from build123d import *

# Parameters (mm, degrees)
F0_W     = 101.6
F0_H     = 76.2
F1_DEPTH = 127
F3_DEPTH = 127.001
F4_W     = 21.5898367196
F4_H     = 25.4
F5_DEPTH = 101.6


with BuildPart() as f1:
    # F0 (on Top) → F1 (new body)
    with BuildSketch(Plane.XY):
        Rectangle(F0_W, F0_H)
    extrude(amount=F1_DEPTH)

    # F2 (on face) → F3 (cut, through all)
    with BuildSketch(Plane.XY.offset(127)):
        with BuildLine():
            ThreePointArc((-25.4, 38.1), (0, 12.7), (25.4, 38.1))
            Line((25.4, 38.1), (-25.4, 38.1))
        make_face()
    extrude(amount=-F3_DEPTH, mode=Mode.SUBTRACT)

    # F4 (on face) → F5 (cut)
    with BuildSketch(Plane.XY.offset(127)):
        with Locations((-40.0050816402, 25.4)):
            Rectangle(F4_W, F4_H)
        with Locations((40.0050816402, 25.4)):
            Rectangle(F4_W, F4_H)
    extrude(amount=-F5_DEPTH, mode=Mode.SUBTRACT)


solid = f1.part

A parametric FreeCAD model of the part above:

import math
import FreeCAD as App
import Part
import Sketcher
Q = App.Units.Quantity

doc = App.newDocument("Part")
body = doc.addObject("PartDesign::Body", "Body")

# Sketch on XY plane
sketch1 = body.newObject("Sketcher::SketchObject", "Sketch")
sketch1.AttachmentSupport = (doc.getObject("XY_Plane"), [""])
sketch1.MapMode = "FlatFace"
sketch1.addGeometry([
    Part.LineSegment(App.Vector(-50.8, 38.1, 0), App.Vector(-50.8, -38.1, 0)),
    Part.LineSegment(App.Vector(-50.8, -38.1, 0), App.Vector(50.8, -38.1, 0)),
    Part.LineSegment(App.Vector(50.8, -38.1, 0), App.Vector(50.8, 38.1, 0)),
    Part.LineSegment(App.Vector(50.8, 38.1, 0), App.Vector(-50.8, 38.1, 0)),
], False)
sketch1.addConstraint([
    Sketcher.Constraint("Coincident", 0, 2, 1, 1),
    Sketcher.Constraint("Coincident", 1, 2, 2, 1),
    Sketcher.Constraint("Coincident", 2, 2, 3, 1),
    Sketcher.Constraint("Coincident", 3, 2, 0, 1),
    Sketcher.Constraint("Vertical", 0),
    Sketcher.Constraint("Horizontal", 1),
    Sketcher.Constraint("Vertical", 2),
    Sketcher.Constraint("Horizontal", 3),
    Sketcher.Constraint("Symmetric", 0, 2, 2, 2, -1, 1),
    Sketcher.Constraint("DistanceX", 1, 1, 1, 2, Q("4 in")),
    Sketcher.Constraint("DistanceY", 0, 2, 0, 1, Q("3 in")),
])
pad1 = body.newObject("PartDesign::Pad", "Pad")
pad1.Profile = sketch1
pad1.Length = Q("5 in")

# Sketch on XY plane
sketch2 = body.newObject("Sketcher::SketchObject", "Sketch001")
sketch2.AttachmentSupport = (doc.getObject("XY_Plane"), [""])
sketch2.MapMode = "FlatFace"
sketch2.AttachmentOffset = App.Placement(App.Vector(0, 0, 5 * 25.4), App.Rotation())
sketch2.addGeometry([
    Part.ArcOfCircle(Part.Circle(App.Vector(0, 38.1, 0), App.Vector(0, 0, 1), 25.4), math.radians(180), math.radians(360)),
    Part.LineSegment(App.Vector(25.4, 38.1, 0), App.Vector(-25.4, 38.1, 0)),
], False)
sketch2.addConstraint([
    Sketcher.Constraint("Coincident", 0, 1, 1, 2),
    Sketcher.Constraint("Coincident", 1, 1, 0, 2),
    Sketcher.Constraint("Horizontal", 1),
    Sketcher.Constraint("PointOnObject", 0, 3, -2),
    Sketcher.Constraint("Radius", 0, Q("1 in")),
    Sketcher.Constraint("DistanceY", -1, 1, 0, 3, Q("1.5 in")),
    Sketcher.Constraint("DistanceY", -1, 1, 0, 1, Q("1.5 in")),
])
pocket1 = body.newObject("PartDesign::Pocket", "Pocket")
pocket1.Profile = sketch2
pocket1.Type = "ThroughAll"

# Sketch on XY plane
sketch3 = body.newObject("Sketcher::SketchObject", "Sketch002")
sketch3.AttachmentSupport = (doc.getObject("XY_Plane"), [""])
sketch3.MapMode = "FlatFace"
sketch3.AttachmentOffset = App.Placement(App.Vector(0, 0, 5 * 25.4), App.Rotation())
sketch3.addGeometry([
    Part.LineSegment(App.Vector(-50.8, 38.1, 0), App.Vector(-50.8, 12.7, 0)),  # 0
    Part.LineSegment(App.Vector(-50.8, 12.7, 0), App.Vector(-29.210163, 12.7, 0)),  # 1
    Part.LineSegment(App.Vector(-29.210163, 12.7, 0), App.Vector(-29.210163, 38.1, 0)),  # 2
    Part.LineSegment(App.Vector(-29.210163, 38.1, 0), App.Vector(-50.8, 38.1, 0)),  # 3
    Part.LineSegment(App.Vector(29.210163, 38.1, 0), App.Vector(29.210163, 12.7, 0)),  # 4
    Part.LineSegment(App.Vector(29.210163, 12.7, 0), App.Vector(50.8, 12.7, 0)),  # 5
    Part.LineSegment(App.Vector(50.8, 12.7, 0), App.Vector(50.8, 38.1, 0)),  # 6
    Part.LineSegment(App.Vector(50.8, 38.1, 0), App.Vector(29.210163, 38.1, 0)),  # 7
], False)
sketch3.addConstraint([
    Sketcher.Constraint("Coincident", 0, 2, 1, 1),
    Sketcher.Constraint("Coincident", 1, 2, 2, 1),
    Sketcher.Constraint("Coincident", 2, 2, 3, 1),
    Sketcher.Constraint("Coincident", 3, 2, 0, 1),
    Sketcher.Constraint("Coincident", 4, 2, 5, 1),
    Sketcher.Constraint("Coincident", 5, 2, 6, 1),
    Sketcher.Constraint("Coincident", 6, 2, 7, 1),
    Sketcher.Constraint("Coincident", 7, 2, 4, 1),
    Sketcher.Constraint("Vertical", 0),
    Sketcher.Constraint("Horizontal", 1),
    Sketcher.Constraint("Vertical", 2),
    Sketcher.Constraint("Horizontal", 3),
    Sketcher.Constraint("Vertical", 4),
    Sketcher.Constraint("Horizontal", 5),
    Sketcher.Constraint("Vertical", 6),
    Sketcher.Constraint("Horizontal", 7),
    Sketcher.Constraint("Symmetric", 1, 2, 4, 2, -2),
    Sketcher.Constraint("Symmetric", 3, 2, 6, 2, -2),
    Sketcher.Constraint("DistanceY", 0, 2, 0, 1, Q("1 in")),
    Sketcher.Constraint("DistanceX", 0, 2, -1, 1, Q("2 in")),
    Sketcher.Constraint("DistanceY", -1, 1, 0, 2, Q("0.5 in")),
    Sketcher.Constraint("DistanceX", 1, 1, 1, 2, Q("21.589837 mm")),
])
pocket2 = body.newObject("PartDesign::Pocket", "Pocket001")
pocket2.Profile = sketch3
pocket2.Length = Q("4 in")

doc.recompute()
